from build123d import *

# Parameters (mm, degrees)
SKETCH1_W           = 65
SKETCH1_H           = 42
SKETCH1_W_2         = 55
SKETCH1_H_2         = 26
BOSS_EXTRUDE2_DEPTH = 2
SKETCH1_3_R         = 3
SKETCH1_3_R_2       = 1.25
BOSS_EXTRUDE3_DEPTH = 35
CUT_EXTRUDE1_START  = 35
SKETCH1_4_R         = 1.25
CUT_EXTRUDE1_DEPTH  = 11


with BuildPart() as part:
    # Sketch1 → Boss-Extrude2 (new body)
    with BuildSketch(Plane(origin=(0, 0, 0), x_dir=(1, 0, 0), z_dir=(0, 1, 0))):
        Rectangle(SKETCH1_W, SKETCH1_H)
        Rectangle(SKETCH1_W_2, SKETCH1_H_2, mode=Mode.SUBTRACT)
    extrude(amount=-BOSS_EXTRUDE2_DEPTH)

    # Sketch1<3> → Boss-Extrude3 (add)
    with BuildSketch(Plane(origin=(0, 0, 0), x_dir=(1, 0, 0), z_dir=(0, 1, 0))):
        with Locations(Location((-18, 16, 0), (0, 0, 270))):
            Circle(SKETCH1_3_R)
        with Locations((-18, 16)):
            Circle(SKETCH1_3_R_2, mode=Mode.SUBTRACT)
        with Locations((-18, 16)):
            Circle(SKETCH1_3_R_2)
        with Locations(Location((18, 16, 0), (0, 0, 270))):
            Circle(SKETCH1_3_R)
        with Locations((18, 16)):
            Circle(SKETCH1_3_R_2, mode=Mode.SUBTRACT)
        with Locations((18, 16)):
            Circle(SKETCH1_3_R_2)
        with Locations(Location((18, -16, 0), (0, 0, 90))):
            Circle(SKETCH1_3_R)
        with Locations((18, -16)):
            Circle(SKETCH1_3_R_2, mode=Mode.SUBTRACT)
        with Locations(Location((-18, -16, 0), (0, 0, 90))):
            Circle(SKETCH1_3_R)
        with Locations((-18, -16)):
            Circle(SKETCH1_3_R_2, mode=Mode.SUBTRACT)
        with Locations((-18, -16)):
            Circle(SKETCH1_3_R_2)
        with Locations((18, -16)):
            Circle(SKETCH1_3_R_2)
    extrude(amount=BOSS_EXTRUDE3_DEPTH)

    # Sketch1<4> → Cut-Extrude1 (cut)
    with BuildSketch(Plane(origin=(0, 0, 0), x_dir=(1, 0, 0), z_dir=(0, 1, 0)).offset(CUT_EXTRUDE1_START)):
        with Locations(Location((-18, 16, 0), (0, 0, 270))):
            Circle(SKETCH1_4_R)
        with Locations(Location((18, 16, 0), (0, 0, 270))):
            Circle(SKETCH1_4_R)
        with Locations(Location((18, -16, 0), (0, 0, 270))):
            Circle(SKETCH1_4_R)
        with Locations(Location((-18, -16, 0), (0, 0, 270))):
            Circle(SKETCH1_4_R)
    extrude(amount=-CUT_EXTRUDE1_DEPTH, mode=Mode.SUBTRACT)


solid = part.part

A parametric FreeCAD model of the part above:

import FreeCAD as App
import Part
import Sketcher
Q = App.Units.Quantity

doc = App.newDocument("Part")
body = doc.addObject("PartDesign::Body", "Body")

# Sketch on XZ plane
sketch1 = body.newObject("Sketcher::SketchObject", "Sketch")
sketch1.AttachmentSupport = (doc.getObject("XZ_Plane"), [""])
sketch1.MapMode = "FlatFace"
sketch1.addGeometry(Part.LineSegment(App.Vector(-32.5, -21, 0), App.Vector(-32.5, 21, 0)), False)
sketch1.addGeometry(Part.LineSegment(App.Vector(-32.5, 21, 0), App.Vector(32.5, 21, 0)), False)
sketch1.addGeometry(Part.LineSegment(App.Vector(32.5, 21, 0), App.Vector(32.5, -21, 0)), False)
sketch1.addGeometry(Part.LineSegment(App.Vector(32.5, -21, 0), App.Vector(-32.5, -21, 0)), False)
sketch1.addGeometry(Part.LineSegment(App.Vector(27.5, 13, 0), App.Vector(-27.5, 13, 0)), False)
sketch1.addGeometry(Part.LineSegment(App.Vector(-27.5, 13, 0), App.Vector(-27.5, -13, 0)), False)
sketch1.addGeometry(Part.LineSegment(App.Vector(-27.5, -13, 0), App.Vector(27.5, -13, 0)), False)
sketch1.addGeometry(Part.LineSegment(App.Vector(27.5, -13, 0), App.Vector(27.5, 13, 0)), False)
sketch1.addConstraint(Sketcher.Constraint("Coincident", 0, 2, 1, 1))
sketch1.addConstraint(Sketcher.Constraint("Coincident", 1, 2, 2, 1))
sketch1.addConstraint(Sketcher.Constraint("Coincident", 2, 2, 3, 1))
sketch1.addConstraint(Sketcher.Constraint("Coincident", 3, 2, 0, 1))
sketch1.addConstraint(Sketcher.Constraint("Coincident", 4, 2, 5, 1))
sketch1.addConstraint(Sketcher.Constraint("Coincident", 5, 2, 6, 1))
sketch1.addConstraint(Sketcher.Constraint("Coincident", 6, 2, 7, 1))
sketch1.addConstraint(Sketcher.Constraint("Coincident", 7, 2, 4, 1))
sketch1.addConstraint(Sketcher.Constraint("Vertical", 0))
sketch1.addConstraint(Sketcher.Constraint("Horizontal", 1))
sketch1.addConstraint(Sketcher.Constraint("Vertical", 2))
sketch1.addConstraint(Sketcher.Constraint("Horizontal", 3))
sketch1.addConstraint(Sketcher.Constraint("Horizontal", 4))
sketch1.addConstraint(Sketcher.Constraint("Vertical", 5))
sketch1.addConstraint(Sketcher.Constraint("Horizontal", 6))
sketch1.addConstraint(Sketcher.Constraint("Vertical", 7))
sketch1.addConstraint(Sketcher.Constraint("Symmetric", 0, 2, 2, 2, -1, 1))
sketch1.addConstraint(Sketcher.Constraint("Symmetric", 4, 2, 6, 2, -1, 1))
sketch1.addConstraint(Sketcher.Constraint("DistanceX", 1, 1, 1, 2, Q("65 mm")))
sketch1.addConstraint(Sketcher.Constraint("DistanceX", 4, 2, 4, 1, Q("55 mm")))
sketch1.addConstraint(Sketcher.Constraint("DistanceY", 0, 1, 0, 2, Q("42 mm")))
sketch1.addConstraint(Sketcher.Constraint("DistanceY", 5, 2, 5, 1, Q("26 mm")))
pad1 = body.newObject("PartDesign::Pad", "Pad")
pad1.Profile = sketch1
pad1.Length = 2

# Sketch on XZ plane
sketch2 = body.newObject("Sketcher::SketchObject", "Sketch001")
sketch2.AttachmentSupport = (doc.getObject("XZ_Plane"), [""])
sketch2.MapMode = "FlatFace"
sketch2.addGeometry(Part.Circle(App.Vector(-18, -16, 0), App.Vector(0, 0, 1), 3), False)
sketch2.addGeometry(Part.Circle(App.Vector(18, -16, 0), App.Vector(0, 0, 1), 3), False)
sketch2.addGeometry(Part.Circle(App.Vector(18, 16, 0), App.Vector(0, 0, 1), 3), False)
sketch2.addGeometry(Part.Circle(App.Vector(-18, 16, 0), App.Vector(0, 0, 1), 3), False)
sketch2.addConstraint(Sketcher.Constraint("Equal", 0, 1))
sketch2.addConstraint(Sketcher.Constraint("Equal", 1, 2))
sketch2.addConstraint(Sketcher.Constraint("Equal", 2, 3))
sketch2.addConstraint(Sketcher.Constraint("Symmetric", 0, 3, 2, 3, -1, 1))
sketch2.addConstraint(Sketcher.Constraint("Symmetric", 1, 3, 3, 3, -1, 1))
sketch2.addConstraint(Sketcher.Constraint("Symmetric", 0, 3, 1, 3, -2))
sketch2.addConstraint(Sketcher.Constraint("Diameter", 0, Q("6 mm")))
sketch2.addConstraint(Sketcher.Constraint("DistanceX", 0, 3, -1, 1, Q("18 mm")))
sketch2.addConstraint(Sketcher.Constraint("DistanceY", 0, 3, -1, 1, Q("16 mm")))
pad2 = body.newObject("PartDesign::Pad", "Pad001")
pad2.Profile = sketch2
pad2.Length = 35
pad2.Reversed = True

# Sketch on XZ plane
sketch3 = body.newObject("Sketcher::SketchObject", "Sketch002")
sketch3.AttachmentSupport = (doc.getObject("XZ_Plane"), [""])
sketch3.MapMode = "FlatFace"
sketch3.AttachmentOffset = App.Placement(App.Vector(0, 0, -35), App.Rotation())
sketch3.addGeometry(Part.Circle(App.Vector(-18, -16, 0), App.Vector(0, 0, 1), 1.25), False)
sketch3.addGeometry(Part.Circle(App.Vector(18, -16, 0), App.Vector(0, 0, 1), 1.25), False)
sketch3.addGeometry(Part.Circle(App.Vector(18, 16, 0), App.Vector(0, 0, 1), 1.25), False)
sketch3.addGeometry(Part.Circle(App.Vector(-18, 16, 0), App.Vector(0, 0, 1), 1.25), False)
sketch3.addConstraint(Sketcher.Constraint("Equal", 0, 1))
sketch3.addConstraint(Sketcher.Constraint("Equal", 1, 2))
sketch3.addConstraint(Sketcher.Constraint("Equal", 2, 3))
sketch3.addConstraint(Sketcher.Constraint("Symmetric", 0, 3, 2, 3, -1, 1))
sketch3.addConstraint(Sketcher.Constraint("Symmetric", 1, 3, 3, 3, -1, 1))
sketch3.addConstraint(Sketcher.Constraint("Symmetric", 0, 3, 1, 3, -2))
sketch3.addConstraint(Sketcher.Constraint("Diameter", 0, Q("2.5 mm")))
sketch3.addConstraint(Sketcher.Constraint("DistanceX", 0, 3, -1, 1, Q("18 mm")))
sketch3.addConstraint(Sketcher.Constraint("DistanceY", 0, 3, -1, 1, Q("16 mm")))
pocket1 = body.newObject("PartDesign::Pocket", "Pocket")
pocket1.Profile = sketch3
pocket1.Length = 11
pocket1.Reversed = True

doc.recompute()
